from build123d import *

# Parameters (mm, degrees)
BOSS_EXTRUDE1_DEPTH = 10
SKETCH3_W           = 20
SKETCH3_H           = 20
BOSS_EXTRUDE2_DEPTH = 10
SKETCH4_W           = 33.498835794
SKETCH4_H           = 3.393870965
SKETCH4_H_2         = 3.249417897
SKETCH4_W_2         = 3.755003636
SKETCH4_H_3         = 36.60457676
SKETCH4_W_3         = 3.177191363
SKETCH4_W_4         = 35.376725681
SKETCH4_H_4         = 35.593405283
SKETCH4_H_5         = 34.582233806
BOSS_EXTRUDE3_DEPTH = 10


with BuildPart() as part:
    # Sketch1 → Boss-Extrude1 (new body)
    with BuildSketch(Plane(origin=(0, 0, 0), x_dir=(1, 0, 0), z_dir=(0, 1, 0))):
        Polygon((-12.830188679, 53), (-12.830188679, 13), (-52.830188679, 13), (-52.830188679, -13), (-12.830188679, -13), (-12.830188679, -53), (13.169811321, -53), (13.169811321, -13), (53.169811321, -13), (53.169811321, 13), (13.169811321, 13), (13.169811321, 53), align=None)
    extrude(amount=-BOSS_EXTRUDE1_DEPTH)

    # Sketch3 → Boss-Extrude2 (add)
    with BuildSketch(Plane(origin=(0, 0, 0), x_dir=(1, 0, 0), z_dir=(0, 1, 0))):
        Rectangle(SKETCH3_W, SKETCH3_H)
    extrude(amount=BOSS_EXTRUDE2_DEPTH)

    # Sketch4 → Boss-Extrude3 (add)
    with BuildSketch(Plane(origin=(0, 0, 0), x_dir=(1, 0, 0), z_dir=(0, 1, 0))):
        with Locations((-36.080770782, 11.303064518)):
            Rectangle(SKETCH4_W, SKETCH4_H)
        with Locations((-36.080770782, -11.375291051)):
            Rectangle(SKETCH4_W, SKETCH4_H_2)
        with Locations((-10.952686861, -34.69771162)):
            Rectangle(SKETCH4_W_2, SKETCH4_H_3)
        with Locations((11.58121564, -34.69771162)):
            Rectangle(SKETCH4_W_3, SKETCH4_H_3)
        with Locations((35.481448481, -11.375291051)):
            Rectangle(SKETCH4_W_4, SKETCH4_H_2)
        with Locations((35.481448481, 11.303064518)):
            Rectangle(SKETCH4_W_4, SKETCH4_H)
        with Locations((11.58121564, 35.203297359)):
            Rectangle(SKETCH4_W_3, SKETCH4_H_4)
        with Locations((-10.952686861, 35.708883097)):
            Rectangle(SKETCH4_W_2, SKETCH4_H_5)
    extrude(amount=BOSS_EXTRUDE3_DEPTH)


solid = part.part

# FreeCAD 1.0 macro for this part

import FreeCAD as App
import Part
import Sketcher

doc = App.newDocument("Part")
params = doc.addObject("Spreadsheet::Sheet", "Params")
for row, (alias, value) in enumerate([
    ("sketch1_width", "40 mm"),
    ("sketch1_width2", "26 mm"),
    ("pad1_length", "10 mm"),
    ("sketch2_width", "20 mm"),
    ("pad2_length", "10 mm"),
    ("pad3_length", "10 mm"),
], start=1):
    params.set(f"A{row}", alias)
    params.set(f"B{row}", "=" + value)
    params.setAlias(f"B{row}", alias)

body = doc.addObject("PartDesign::Body", "Body")

sketch1 = body.newObject("Sketcher::SketchObject", "Sketch")
sketch1.AttachmentSupport = (doc.getObject("XZ_Plane"), [""])
sketch1.MapMode = "FlatFace"
sketch1.addGeometry(Part.LineSegment(App.Vector(-13, -53, 0), App.Vector(-13, -13, 0)), False)
sketch1.addGeometry(Part.LineSegment(App.Vector(-13, -13, 0), App.Vector(-53, -13, 0)), False)
sketch1.addGeometry(Part.LineSegment(App.Vector(-53, -13, 0), App.Vector(-53, 13, 0)), False)
sketch1.addGeometry(Part.LineSegment(App.Vector(-53, 13, 0), App.Vector(-13, 13, 0)), False)
sketch1.addGeometry(Part.LineSegment(App.Vector(-13, 13, 0), App.Vector(-13, 53, 0)), False)
sketch1.addGeometry(Part.LineSegment(App.Vector(-13, 53, 0), App.Vector(13, 53, 0)), False)
sketch1.addGeometry(Part.LineSegment(App.Vector(13, 53, 0), App.Vector(13, 13, 0)), False)
sketch1.addGeometry(Part.LineSegment(App.Vector(13, 13, 0), App.Vector(53, 13, 0)), False)
sketch1.addGeometry(Part.LineSegment(App.Vector(53, 13, 0), App.Vector(53, -13, 0)), False)
sketch1.addGeometry(Part.LineSegment(App.Vector(53, -13, 0), App.Vector(13, -13, 0)), False)
sketch1.addGeometry(Part.LineSegment(App.Vector(13, -13, 0), App.Vector(13, -53, 0)), False)
sketch1.addGeometry(Part.LineSegment(App.Vector(13, -53, 0), App.Vector(-13, -53, 0)), False)
sketch1.addConstraint(Sketcher.Constraint("Coincident", 0, 2, 1, 1))
sketch1.addConstraint(Sketcher.Constraint("Coincident", 1, 2, 2, 1))
sketch1.addConstraint(Sketcher.Constraint("Coincident", 2, 2, 3, 1))
sketch1.addConstraint(Sketcher.Constraint("Coincident", 3, 2, 4, 1))
sketch1.addConstraint(Sketcher.Constraint("Coincident", 4, 2, 5, 1))
sketch1.addConstraint(Sketcher.Constraint("Coincident", 5, 2, 6, 1))
sketch1.addConstraint(Sketcher.Constraint("Coincident", 6, 2, 7, 1))
sketch1.addConstraint(Sketcher.Constraint("Coincident", 7, 2, 8, 1))
sketch1.addConstraint(Sketcher.Constraint("Coincident", 8, 2, 9, 1))
sketch1.addConstraint(Sketcher.Constraint("Coincident", 9, 2, 10, 1))
sketch1.addConstraint(Sketcher.Constraint("Coincident", 10, 2, 11, 1))
sketch1.addConstraint(Sketcher.Constraint("Coincident", 11, 2, 0, 1))
sketch1.addConstraint(Sketcher.Constraint("Vertical", 0))
sketch1.addConstraint(Sketcher.Constraint("Horizontal", 1))
sketch1.addConstraint(Sketcher.Constraint("Vertical", 2))
sketch1.addConstraint(Sketcher.Constraint("Horizontal", 3))
sketch1.addConstraint(Sketcher.Constraint("Vertical", 4))
sketch1.addConstraint(Sketcher.Constraint("Horizontal", 5))
sketch1.addConstraint(Sketcher.Constraint("Vertical", 6))
sketch1.addConstraint(Sketcher.Constraint("Horizontal", 7))
sketch1.addConstraint(Sketcher.Constraint("Vertical", 8))
sketch1.addConstraint(Sketcher.Constraint("Horizontal", 9))
sketch1.addConstraint(Sketcher.Constraint("Vertical", 10))
sketch1.addConstraint(Sketcher.Constraint("Horizontal", 11))
sketch1.addConstraint(Sketcher.Constraint("Symmetric", 0, 2, 3, 2, -1))
sketch1.addConstraint(Sketcher.Constraint("Symmetric", 6, 2, 9, 2, -1))
sketch1.addConstraint(Sketcher.Constraint("Horizontal", 3, 2, 6, 2))
sketch1.addConstraint(Sketcher.Constraint("Equal", 3, 7))
sketch1.addConstraint(Sketcher.Constraint("Equal", 9, 0))
sketch1.addConstraint(Sketcher.Constraint("Equal", 11, 2))
sketch1.addConstraint(Sketcher.Constraint("Equal", 0, 4))
sketch1.addConstraint(Sketcher.Constraint("DistanceX", 1, 2, 1, 1, 40.0))
sketch1.addConstraint(Sketcher.Constraint("DistanceX", 5, 1, 5, 2, 26.0))
sketch1.addConstraint(Sketcher.Constraint("DistanceX", 0, 2, -1, 1, 12.830189))
sketch1.setExpression("Constraints[31]", "Params.sketch1_width")
sketch1.setExpression("Constraints[32]", "Params.sketch1_width2")
pad1 = body.newObject("PartDesign::Pad", "Pad")
pad1.Profile = sketch1
pad1.setExpression("Length", "Params.pad1_length")

sketch2 = body.newObject("Sketcher::SketchObject", "Sketch001")
sketch2.AttachmentSupport = (doc.getObject("XZ_Plane"), [""])
sketch2.MapMode = "FlatFace"
sketch2.addGeometry(Part.LineSegment(App.Vector(-10, -10, 0), App.Vector(-10, 10, 0)), False)
sketch2.addGeometry(Part.LineSegment(App.Vector(-10, 10, 0), App.Vector(10, 10, 0)), False)
sketch2.addGeometry(Part.LineSegment(App.Vector(10, 10, 0), App.Vector(10, -10, 0)), False)
sketch2.addGeometry(Part.LineSegment(App.Vector(10, -10, 0), App.Vector(-10, -10, 0)), False)
sketch2.addConstraint(Sketcher.Constraint("Coincident", 0, 2, 1, 1))
sketch2.addConstraint(Sketcher.Constraint("Coincident", 1, 2, 2, 1))
sketch2.addConstraint(Sketcher.Constraint("Coincident", 2, 2, 3, 1))
sketch2.addConstraint(Sketcher.Constraint("Coincident", 3, 2, 0, 1))
sketch2.addConstraint(Sketcher.Constraint("Vertical", 0))
sketch2.addConstraint(Sketcher.Constraint("Horizontal", 1))
sketch2.addConstraint(Sketcher.Constraint("Vertical", 2))
sketch2.addConstraint(Sketcher.Constraint("Horizontal", 3))
sketch2.addConstraint(Sketcher.Constraint("Symmetric", 0, 2, 2, 2, -1, 1))
sketch2.addConstraint(Sketcher.Constraint("Equal", 3, 0))
sketch2.addConstraint(Sketcher.Constraint("DistanceX", 1, 1, 1, 2, 20.0))
sketch2.setExpression("Constraints[10]", "Params.sketch2_width")
pad2 = body.newObject("PartDesign::Pad", "Pad001")
pad2.Profile = sketch2
pad2.setExpression("Length", "Params.pad2_length")
pad2.Reversed = True

sketch3 = body.newObject("Sketcher::SketchObject", "Sketch002")
sketch3.AttachmentSupport = (doc.getObject("XZ_Plane"), [""])
sketch3.MapMode = "FlatFace"
sketch3.addGeometry(Part.LineSegment(App.Vector(-52.8, -13, 0), App.Vector(-52.8, -9.6, 0)), False)
sketch3.addGeometry(Part.LineSegment(App.Vector(-52.8, -9.6, 0), App.Vector(-19.3, -9.6, 0)), False)
sketch3.addGeometry(Part.LineSegment(App.Vector(-19.3, -9.6, 0), App.Vector(-19.3, -13, 0)), False)
sketch3.addGeometry(Part.LineSegment(App.Vector(-19.3, -13, 0), App.Vector(-52.8, -13, 0)), False)
sketch3.addGeometry(Part.LineSegment(App.Vector(-52.8, 9.8, 0), App.Vector(-52.8, 13, 0)), False)
sketch3.addGeometry(Part.LineSegment(App.Vector(-52.8, 13, 0), App.Vector(-19.3, 13, 0)), False)
sketch3.addGeometry(Part.LineSegment(App.Vector(-19.3, 13, 0), App.Vector(-19.3, 9.8, 0)), False)
sketch3.addGeometry(Part.LineSegment(App.Vector(-19.3, 9.8, 0), App.Vector(-52.8, 9.8, 0)), False)
sketch3.addGeometry(Part.LineSegment(App.Vector(-12.8, 16.4, 0), App.Vector(-12.8, 53, 0)), False)
sketch3.addGeometry(Part.LineSegment(App.Vector(-12.8, 53, 0), App.Vector(-9.1, 53, 0)), False)
sketch3.addGeometry(Part.LineSegment(App.Vector(-9.1, 53, 0), App.Vector(-9.1, 16.4, 0)), False)
sketch3.addGeometry(Part.LineSegment(App.Vector(-9.1, 16.4, 0), App.Vector(-12.8, 16.4, 0)), False)
sketch3.addGeometry(Part.LineSegment(App.Vector(10, 16.4, 0), App.Vector(10, 53, 0)), False)
sketch3.addGeometry(Part.LineSegment(App.Vector(10, 53, 0), App.Vector(13.2, 53, 0)), False)
sketch3.addGeometry(Part.LineSegment(App.Vector(13.2, 53, 0), App.Vector(13.2, 16.4, 0)), False)
sketch3.addGeometry(Part.LineSegment(App.Vector(13.2, 16.4, 0), App.Vector(10, 16.4, 0)), False)
sketch3.addGeometry(Part.LineSegment(App.Vector(17.8, 9.8, 0), App.Vector(17.8, 13, 0)), False)
sketch3.addGeometry(Part.LineSegment(App.Vector(17.8, 13, 0), App.Vector(53.2, 13, 0)), False)
sketch3.addGeometry(Part.LineSegment(App.Vector(53.2, 13, 0), App.Vector(53.2, 9.8, 0)), False)
sketch3.addGeometry(Part.LineSegment(App.Vector(53.2, 9.8, 0), App.Vector(17.8, 9.8, 0)), False)
sketch3.addGeometry(Part.LineSegment(App.Vector(17.8, -13, 0), App.Vector(17.8, -9.6, 0)), False)
sketch3.addGeometry(Part.LineSegment(App.Vector(17.8, -9.6, 0), App.Vector(53.2, -9.6, 0)), False)
sketch3.addGeometry(Part.LineSegment(App.Vector(53.2, -9.6, 0), App.Vector(53.2, -13, 0)), False)
sketch3.addGeometry(Part.LineSegment(App.Vector(53.2, -13, 0), App.Vector(17.8, -13, 0)), False)
sketch3.addGeometry(Part.LineSegment(App.Vector(10, -53, 0), App.Vector(10, -17.4, 0)), False)
sketch3.addGeometry(Part.LineSegment(App.Vector(10, -17.4, 0), App.Vector(13.2, -17.4, 0)), False)
sketch3.addGeometry(Part.LineSegment(App.Vector(13.2, -17.4, 0), App.Vector(13.2, -53, 0)), False)
sketch3.addGeometry(Part.LineSegment(App.Vector(13.2, -53, 0), App.Vector(10, -53, 0)), False)
sketch3.addGeometry(Part.LineSegment(App.Vector(-12.8, -53, 0), App.Vector(-12.8, -18.4, 0)), False)
sketch3.addGeometry(Part.LineSegment(App.Vector(-12.8, -18.4, 0), App.Vector(-9.1, -18.4, 0)), False)
sketch3.addGeometry(Part.LineSegment(App.Vector(-9.1, -18.4, 0), App.Vector(-9.1, -53, 0)), False)
sketch3.addGeometry(Part.LineSegment(App.Vector(-9.1, -53, 0), App.Vector(-12.8, -53, 0)), False)
sketch3.addConstraint(Sketcher.Constraint("Coincident", 0, 2, 1, 1))
sketch3.addConstraint(Sketcher.Constraint("Coincident", 1, 2, 2, 1))
sketch3.addConstraint(Sketcher.Constraint("Coincident", 2, 2, 3, 1))
sketch3.addConstraint(Sketcher.Constraint("Coincident", 3, 2, 0, 1))
sketch3.addConstraint(Sketcher.Constraint("Coincident", 4, 2, 5, 1))
sketch3.addConstraint(Sketcher.Constraint("Coincident", 5, 2, 6, 1))
sketch3.addConstraint(Sketcher.Constraint("Coincident", 6, 2, 7, 1))
sketch3.addConstraint(Sketcher.Constraint("Coincident", 7, 2, 4, 1))
sketch3.addConstraint(Sketcher.Constraint("Coincident", 8, 2, 9, 1))
sketch3.addConstraint(Sketcher.Constraint("Coincident", 9, 2, 10, 1))
sketch3.addConstraint(Sketcher.Constraint("Coincident", 10, 2, 11, 1))
sketch3.addConstraint(Sketcher.Constraint("Coincident", 11, 2, 8, 1))
sketch3.addConstraint(Sketcher.Constraint("Coincident", 12, 2, 13, 1))
sketch3.addConstraint(Sketcher.Constraint("Coincident", 13, 2, 14, 1))
sketch3.addConstraint(Sketcher.Constraint("Coincident", 14, 2, 15, 1))
sketch3.addConstraint(Sketcher.Constraint("Coincident", 15, 2, 12, 1))
sketch3.addConstraint(Sketcher.Constraint("Coincident", 16, 2, 17, 1))
sketch3.addConstraint(Sketcher.Constraint("Coincident", 17, 2, 18, 1))
sketch3.addConstraint(Sketcher.Constraint("Coincident", 18, 2, 19, 1))
sketch3.addConstraint(Sketcher.Constraint("Coincident", 19, 2, 16, 1))
sketch3.addConstraint(Sketcher.Constraint("Coincident", 20, 2, 21, 1))
sketch3.addConstraint(Sketcher.Constraint("Coincident", 21, 2, 22, 1))
sketch3.addConstraint(Sketcher.Constraint("Coincident", 22, 2, 23, 1))
sketch3.addConstraint(Sketcher.Constraint("Coincident", 23, 2, 20, 1))
sketch3.addConstraint(Sketcher.Constraint("Coincident", 24, 2, 25, 1))
sketch3.addConstraint(Sketcher.Constraint("Coincident", 25, 2, 26, 1))
sketch3.addConstraint(Sketcher.Constraint("Coincident", 26, 2, 27, 1))
sketch3.addConstraint(Sketcher.Constraint("Coincident", 27, 2, 24, 1))
sketch3.addConstraint(Sketcher.Constraint("Coincident", 28, 2, 29, 1))
sketch3.addConstraint(Sketcher.Constraint("Coincident", 29, 2, 30, 1))
sketch3.addConstraint(Sketcher.Constraint("Coincident", 30, 2, 31, 1))
sketch3.addConstraint(Sketcher.Constraint("Coincident", 31, 2, 28, 1))
sketch3.addConstraint(Sketcher.Constraint("Vertical", 0))
sketch3.addConstraint(Sketcher.Constraint("Horizontal", 1))
sketch3.addConstraint(Sketcher.Constraint("Vertical", 2))
sketch3.addConstraint(Sketcher.Constraint("Horizontal", 3))
sketch3.addConstraint(Sketcher.Constraint("Vertical", 4))
sketch3.addConstraint(Sketcher.Constraint("Horizontal", 5))
sketch3.addConstraint(Sketcher.Constraint("Vertical", 6))
sketch3.addConstraint(Sketcher.Constraint("Horizontal", 7))
sketch3.addConstraint(Sketcher.Constraint("Vertical", 8))
sketch3.addConstraint(Sketcher.Constraint("Horizontal", 9))
sketch3.addConstraint(Sketcher.Constraint("Vertical", 10))
sketch3.addConstraint(Sketcher.Constraint("Horizontal", 11))
sketch3.addConstraint(Sketcher.Constraint("Vertical", 12))
sketch3.addConstraint(Sketcher.Constraint("Horizontal", 13))
sketch3.addConstraint(Sketcher.Constraint("Vertical", 14))
sketch3.addConstraint(Sketcher.Constraint("Horizontal", 15))
sketch3.addConstraint(Sketcher.Constraint("Vertical", 16))
sketch3.addConstraint(Sketcher.Constraint("Horizontal", 17))
sketch3.addConstraint(Sketcher.Constraint("Vertical", 18))
sketch3.addConstraint(Sketcher.Constraint("Horizontal", 19))
sketch3.addConstraint(Sketcher.Constraint("Vertical", 20))
sketch3.addConstraint(Sketcher.Constraint("Horizontal", 21))
sketch3.addConstraint(Sketcher.Constraint("Vertical", 22))
sketch3.addConstraint(Sketcher.Constraint("Horizontal", 23))
sketch3.addConstraint(Sketcher.Constraint("Vertical", 24))
sketch3.addConstraint(Sketcher.Constraint("Horizontal", 25))
sketch3.addConstraint(Sketcher.Constraint("Vertical", 26))
sketch3.addConstraint(Sketcher.Constraint("Horizontal", 27))
sketch3.addConstraint(Sketcher.Constraint("Vertical", 28))
sketch3.addConstraint(Sketcher.Constraint("Horizontal", 29))
sketch3.addConstraint(Sketcher.Constraint("Vertical", 30))
sketch3.addConstraint(Sketcher.Constraint("Horizontal", 31))
sketch3.addConstraint(Sketcher.Constraint("Symmetric", 3, 2, 4, 2, -1))
sketch3.addConstraint(Sketcher.Constraint("Symmetric", 17, 2, 22, 2, -1))
sketch3.addConstraint(Sketcher.Constraint("Symmetric", 13, 2, 26, 2, -1))
sketch3.addConstraint(Sketcher.Constraint("Symmetric", 9, 2, 30, 2, -1))
sketch3.addConstraint(Sketcher.Constraint("Horizontal", 9, 2, 12, 2))
sketch3.addConstraint(Sketcher.Constraint("Horizontal", 11, 2, 14, 2))
sketch3.addConstraint(Sketcher.Constraint("Horizontal", 5, 2, 16, 2))
sketch3.addConstraint(Sketcher.Constraint("Horizontal", 7, 2, 18, 2))
sketch3.addConstraint(Sketcher.Constraint("Horizontal", 1, 2, 20, 2))
sketch3.addConstraint(Sketcher.Constraint("Vertical", 2, 2, 5, 2))
sketch3.addConstraint(Sketcher.Constraint("Vertical", 19, 2, 20, 2))
sketch3.addConstraint(Sketcher.Constraint("Vertical", 15, 2, 24, 2))
sketch3.addConstraint(Sketcher.Constraint("Vertical", 11, 2, 28, 2))
sketch3.addConstraint(Sketcher.Constraint("DistanceY", 2, 2, -1, 1, 13.0))
sketch3.addConstraint(Sketcher.Constraint("DistanceY", -1, 1, 8, 2, 53.0))
sketch3.addConstraint(Sketcher.Constraint("DistanceX", 4, 2, 8, 2, 40.0))
sketch3.addConstraint(Sketcher.Constraint("DistanceX", 8, 2, 13, 2, 26.0))
sketch3.addConstraint(Sketcher.Constraint("DistanceX", 14, 2, 17, 2, 40.0))
sketch3.addConstraint(Sketcher.Constraint("DistanceX", 13, 1, 13, 2, 3.177191))
sketch3.addConstraint(Sketcher.Constraint("DistanceY", 0, 1, 0, 2, 3.393871))
sketch3.addConstraint(Sketcher.Constraint("DistanceX", 1, 1, 1, 2, 33.498836))
sketch3.addConstraint(Sketcher.Constraint("DistanceX", 9, 1, 9, 2, 3.755004))
sketch3.addConstraint(Sketcher.Constraint("DistanceX", 17, 1, 17, 2, 35.376726))
sketch3.addConstraint(Sketcher.Constraint("DistanceY", 4, 1, 4, 2, 3.249418))
sketch3.addConstraint(Sketcher.Constraint("DistanceY", 8, 1, 8, 2, 36.604577))
sketch3.addConstraint(Sketcher.Constraint("DistanceY", 24, 1, 24, 2, 35.593405))
sketch3.addConstraint(Sketcher.Constraint("DistanceY", 28, 1, 28, 2, 34.582234))
sketch3.addConstraint(Sketcher.Constraint("DistanceX", 0, 2, -1, 1, 52.830189))
pad3 = body.newObject("PartDesign::Pad", "Pad002")
pad3.Profile = sketch3
pad3.setExpression("Length", "Params.pad3_length")
pad3.Reversed = True

doc.recompute()
